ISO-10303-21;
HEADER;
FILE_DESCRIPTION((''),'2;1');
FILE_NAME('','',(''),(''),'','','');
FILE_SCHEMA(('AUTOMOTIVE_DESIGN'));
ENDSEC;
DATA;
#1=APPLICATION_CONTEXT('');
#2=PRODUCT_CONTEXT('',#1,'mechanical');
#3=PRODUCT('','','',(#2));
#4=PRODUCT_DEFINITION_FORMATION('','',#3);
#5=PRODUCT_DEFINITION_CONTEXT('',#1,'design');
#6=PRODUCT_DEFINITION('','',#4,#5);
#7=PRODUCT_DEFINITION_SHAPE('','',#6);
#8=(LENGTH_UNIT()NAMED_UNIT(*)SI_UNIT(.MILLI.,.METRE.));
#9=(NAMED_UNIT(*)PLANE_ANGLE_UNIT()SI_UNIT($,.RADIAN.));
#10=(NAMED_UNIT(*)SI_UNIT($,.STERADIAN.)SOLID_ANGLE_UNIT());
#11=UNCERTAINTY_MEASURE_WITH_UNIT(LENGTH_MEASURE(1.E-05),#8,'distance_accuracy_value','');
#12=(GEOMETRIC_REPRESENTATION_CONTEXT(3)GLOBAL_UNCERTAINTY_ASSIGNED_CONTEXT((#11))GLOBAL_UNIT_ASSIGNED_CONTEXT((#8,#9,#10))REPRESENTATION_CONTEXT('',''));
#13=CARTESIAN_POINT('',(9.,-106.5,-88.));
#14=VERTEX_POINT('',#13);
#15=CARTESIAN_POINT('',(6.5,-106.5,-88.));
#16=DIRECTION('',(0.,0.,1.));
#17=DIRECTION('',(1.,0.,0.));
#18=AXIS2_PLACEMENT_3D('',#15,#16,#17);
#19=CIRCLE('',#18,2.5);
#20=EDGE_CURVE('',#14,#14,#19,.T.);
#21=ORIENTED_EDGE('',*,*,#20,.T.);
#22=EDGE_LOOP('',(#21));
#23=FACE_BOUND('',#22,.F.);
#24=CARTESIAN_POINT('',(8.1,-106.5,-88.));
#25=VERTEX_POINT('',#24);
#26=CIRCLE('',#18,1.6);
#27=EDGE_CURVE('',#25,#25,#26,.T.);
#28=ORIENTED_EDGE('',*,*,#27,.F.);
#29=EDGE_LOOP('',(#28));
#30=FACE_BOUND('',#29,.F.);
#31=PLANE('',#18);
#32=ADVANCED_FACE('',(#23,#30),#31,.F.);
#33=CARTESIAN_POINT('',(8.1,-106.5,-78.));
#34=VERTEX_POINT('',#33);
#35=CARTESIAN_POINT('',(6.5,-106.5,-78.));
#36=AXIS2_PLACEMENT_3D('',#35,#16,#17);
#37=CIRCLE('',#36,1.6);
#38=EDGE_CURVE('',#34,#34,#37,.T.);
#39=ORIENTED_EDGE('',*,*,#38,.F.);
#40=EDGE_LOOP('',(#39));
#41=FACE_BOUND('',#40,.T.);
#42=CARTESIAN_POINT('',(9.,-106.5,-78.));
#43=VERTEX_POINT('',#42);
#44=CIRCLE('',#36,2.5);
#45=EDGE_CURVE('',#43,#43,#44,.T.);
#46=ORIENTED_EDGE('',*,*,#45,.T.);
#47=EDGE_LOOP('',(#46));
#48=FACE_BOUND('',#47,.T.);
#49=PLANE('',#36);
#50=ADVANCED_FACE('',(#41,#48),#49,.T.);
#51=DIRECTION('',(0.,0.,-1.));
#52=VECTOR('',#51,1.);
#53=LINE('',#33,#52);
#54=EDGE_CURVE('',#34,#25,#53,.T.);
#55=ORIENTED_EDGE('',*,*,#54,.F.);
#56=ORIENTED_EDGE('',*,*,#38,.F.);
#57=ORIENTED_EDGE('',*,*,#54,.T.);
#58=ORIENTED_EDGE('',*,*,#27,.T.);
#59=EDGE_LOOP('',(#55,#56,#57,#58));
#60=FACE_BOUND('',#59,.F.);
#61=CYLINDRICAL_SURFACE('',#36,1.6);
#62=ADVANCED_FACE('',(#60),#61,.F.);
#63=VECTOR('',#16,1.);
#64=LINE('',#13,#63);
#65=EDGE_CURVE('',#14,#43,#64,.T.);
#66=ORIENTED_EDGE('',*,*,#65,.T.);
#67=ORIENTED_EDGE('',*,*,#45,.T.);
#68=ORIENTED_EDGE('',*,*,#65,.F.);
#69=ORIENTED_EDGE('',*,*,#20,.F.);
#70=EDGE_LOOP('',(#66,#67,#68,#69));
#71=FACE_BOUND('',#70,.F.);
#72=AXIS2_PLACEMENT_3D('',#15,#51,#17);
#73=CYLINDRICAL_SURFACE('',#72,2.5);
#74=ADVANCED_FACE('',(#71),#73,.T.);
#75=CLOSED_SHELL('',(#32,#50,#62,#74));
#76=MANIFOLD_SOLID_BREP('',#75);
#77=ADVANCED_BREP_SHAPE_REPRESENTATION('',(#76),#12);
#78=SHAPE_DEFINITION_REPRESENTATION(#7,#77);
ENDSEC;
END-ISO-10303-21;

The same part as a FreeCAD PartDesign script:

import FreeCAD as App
import Part
import Sketcher

V = App.Vector
Q = App.Units.Quantity

doc = App.newDocument("Part")
body = doc.addObject("PartDesign::Body", "Body")

# Sketch on XY plane
sketch1 = body.newObject("Sketcher::SketchObject", "Sketch")
sketch1.AttachmentSupport = (doc.getObject("XY_Plane"), [""])
sketch1.MapMode = "FlatFace"
sketch1.AttachmentOffset = App.Placement(V(0, 0, 10), App.Rotation())
sketch1.addGeometry(Part.Circle(V(0, 0, 0), V(0, 0, 1), 1.6), False)
sketch1.addConstraint(Sketcher.Constraint("Coincident", 0, 3, -1, 1))
sketch1.addConstraint(Sketcher.Constraint("Diameter", 0, Q("3.2 mm")))
pad1 = body.newObject("PartDesign::Pad", "Pad")
pad1.Profile = sketch1
pad1.Length = 10
pad1.Reversed = True
body2 = doc.addObject("PartDesign::Body", "Body001")

# Sketch on XY plane
sketch2 = body2.newObject("Sketcher::SketchObject", "Sketch001")
sketch2.AttachmentSupport = (doc.getObject("XY_Plane001"), [""])
sketch2.MapMode = "FlatFace"
sketch2.addGeometry(Part.Circle(V(0, 0, 0), V(0, 0, 1), 2.5), False)
sketch2.addConstraint(Sketcher.Constraint("Coincident", 0, 3, -1, 1))
sketch2.addConstraint(Sketcher.Constraint("Diameter", 0, Q("5 mm")))
pad2 = body2.newObject("PartDesign::Pad", "Pad001")
pad2.Profile = sketch2
pad2.Length = 10
doc.recompute()

boolean = body2.newObject("PartDesign::Boolean", "Boolean")
boolean.Type = "Cut"
boolean.addObjects([body])
body3 = doc.addObject("PartDesign::Body", "Body002")
doc.recompute()

body2.Placement = App.Placement(V(6.5, -106.5, -88), App.Rotation(V(0, 0, 1), 0))
boolean2 = body3.newObject("PartDesign::Boolean", "Boolean001")
boolean2.Type = "Fuse"
boolean2.addObjects([body2])

doc.recompute()
